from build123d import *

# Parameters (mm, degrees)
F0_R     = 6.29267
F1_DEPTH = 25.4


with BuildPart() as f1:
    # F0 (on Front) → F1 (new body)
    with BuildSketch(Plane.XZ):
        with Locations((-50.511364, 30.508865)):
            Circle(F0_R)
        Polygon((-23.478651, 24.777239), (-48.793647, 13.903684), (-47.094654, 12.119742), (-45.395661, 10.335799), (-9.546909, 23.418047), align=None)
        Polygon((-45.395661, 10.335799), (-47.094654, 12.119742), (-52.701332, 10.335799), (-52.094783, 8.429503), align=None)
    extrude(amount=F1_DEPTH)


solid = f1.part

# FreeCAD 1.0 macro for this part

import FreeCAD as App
import Part
import Sketcher

V = App.Vector
Q = App.Units.Quantity

doc = App.newDocument("Part")
body = doc.addObject("PartDesign::Body", "Body")
body.AllowCompound = True

sketch1 = doc.addObject("Sketcher::SketchObject", "Sketch")
body.addObject(sketch1)
sketch1.AttachmentSupport = (doc.XZ_Plane, [""])
sketch1.MapMode = "FlatFace"
sketch1.addGeometry([
    Part.Circle(V(-50.511364, 30.508865, 0), V(0, 0, 1), 6.29267),
    Part.LineSegment(V(-23.478651, 24.777239, 0), V(-48.793647, 13.903684, 0)),
    Part.LineSegment(V(-48.793647, 13.903684, 0), V(-47.094654, 12.119742, 0)),
    Part.LineSegment(V(-47.094654, 12.119742, 0), V(-52.701332, 10.335799, 0)),
    Part.LineSegment(V(-52.701332, 10.335799, 0), V(-52.094783, 8.429503, 0)),
    Part.LineSegment(V(-52.094783, 8.429503, 0), V(-45.395661, 10.335799, 0)),
    Part.LineSegment(V(-45.395661, 10.335799, 0), V(-9.546909, 23.418047, 0)),
    Part.LineSegment(V(-9.546909, 23.418047, 0), V(-23.478651, 24.777239, 0)),
], False)
sketch1.addConstraint([
    Sketcher.Constraint("Coincident", 1, 2, 2, 1),
    Sketcher.Constraint("Coincident", 2, 2, 3, 1),
    Sketcher.Constraint("Coincident", 3, 2, 4, 1),
    Sketcher.Constraint("Coincident", 4, 2, 5, 1),
    Sketcher.Constraint("Coincident", 5, 2, 6, 1),
    Sketcher.Constraint("Coincident", 6, 2, 7, 1),
    Sketcher.Constraint("Coincident", 7, 2, 1, 1),
    Sketcher.Constraint("Perpendicular", 3, 4),
    Sketcher.Constraint("Horizontal", 3, 2, 5, 2),
    Sketcher.Constraint("Diameter", 0, 12.58534),
    Sketcher.Constraint("DistanceY", -1, 1, 3, 2, 10.335799),
    Sketcher.Constraint("Distance", 2, 2.463539),
    Sketcher.Constraint("Distance", 5, 6.96507),
    Sketcher.Constraint("DistanceX", 5, 2, -1, 1, 45.395661),
    Sketcher.Constraint("DistanceX", 6, 2, -1, 1, 9.546909),
    Sketcher.Constraint("DistanceX", 7, 2, -1, 1, 23.478651),
    Sketcher.Constraint("DistanceY", -1, 1, 7, 2, 24.777239),
    Sketcher.Constraint("DistanceY", 1, 2, 0, 3, 16.605181),
    Sketcher.Constraint("DistanceY", 2, 2, 1, 2, 1.783942),
    Sketcher.Constraint("DistanceX", 0, 3, 2, 2, 3.41671),
    Sketcher.Constraint("DistanceX", 3, 2, 2, 2, 5.606678),
    Sketcher.Constraint("DistanceX", 3, 2, 4, 2, 0.606549),
    Sketcher.Constraint("DistanceY", 4, 2, 2, 2, 3.690239),
    Sketcher.Constraint("DistanceY", 5, 2, 6, 2, 13.082248),
])
pad1 = doc.addObject("PartDesign::Pad", "Pad")
body.addObject(pad1)
pad1.Profile = sketch1
pad1.Length = Q("1 in")

doc.recompute()
